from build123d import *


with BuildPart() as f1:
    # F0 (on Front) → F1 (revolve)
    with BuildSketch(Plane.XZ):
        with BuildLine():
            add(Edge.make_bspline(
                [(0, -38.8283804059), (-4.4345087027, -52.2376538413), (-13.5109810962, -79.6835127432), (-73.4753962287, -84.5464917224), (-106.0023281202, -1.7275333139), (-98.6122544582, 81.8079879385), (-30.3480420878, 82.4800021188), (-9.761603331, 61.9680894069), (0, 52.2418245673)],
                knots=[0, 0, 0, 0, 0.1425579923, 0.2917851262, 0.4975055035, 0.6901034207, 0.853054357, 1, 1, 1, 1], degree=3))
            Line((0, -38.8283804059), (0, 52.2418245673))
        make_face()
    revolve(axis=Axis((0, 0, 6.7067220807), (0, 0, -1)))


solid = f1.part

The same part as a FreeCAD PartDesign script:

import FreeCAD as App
import Part
import Sketcher

doc = App.newDocument("Part")
body = doc.addObject("PartDesign::Body", "Body")

# Sketch on XZ plane
sketch1 = body.newObject("Sketcher::SketchObject", "Sketch")
sketch1.AttachmentSupport = (doc.getObject("XZ_Plane"), [""])
sketch1.MapMode = "FlatFace"
sketch1.addGeometry(Part.BSplineCurve([App.Vector(0, -38.82838, 0), App.Vector(-4.434509, -52.237654, 0), App.Vector(-13.510981, -79.683513, 0), App.Vector(-73.475396, -84.546492, 0), App.Vector(-106.002328, -1.727533, 0), App.Vector(-98.612254, 81.807988, 0), App.Vector(-30.348042, 82.480002, 0), App.Vector(-9.761603, 61.968089, 0), App.Vector(0, 52.241825, 0)], [4, 1, 1, 1, 1, 1, 4], [0, 0.142557992, 0.291785126, 0.497505504, 0.690103421, 0.853054357, 1], False, 3, [1, 1, 1, 1, 1, 1, 1, 1, 1], False), False)
sketch1.addGeometry(Part.LineSegment(App.Vector(0, -38.82838, 0), App.Vector(0, 52.241825, 0)), False)
sketch1.addConstraint(Sketcher.Constraint("Block", 0))
sketch1.addConstraint(Sketcher.Constraint("Coincident", 0, 1, 1, 1))
sketch1.addConstraint(Sketcher.Constraint("Coincident", 1, 2, 0, 2))
revolution = body.newObject("PartDesign::Revolution", "Revolution")
revolution.Profile = sketch1
revolution.ReferenceAxis = (sketch1, ["V_Axis"])
revolution.Angle = 360

doc.recompute()
